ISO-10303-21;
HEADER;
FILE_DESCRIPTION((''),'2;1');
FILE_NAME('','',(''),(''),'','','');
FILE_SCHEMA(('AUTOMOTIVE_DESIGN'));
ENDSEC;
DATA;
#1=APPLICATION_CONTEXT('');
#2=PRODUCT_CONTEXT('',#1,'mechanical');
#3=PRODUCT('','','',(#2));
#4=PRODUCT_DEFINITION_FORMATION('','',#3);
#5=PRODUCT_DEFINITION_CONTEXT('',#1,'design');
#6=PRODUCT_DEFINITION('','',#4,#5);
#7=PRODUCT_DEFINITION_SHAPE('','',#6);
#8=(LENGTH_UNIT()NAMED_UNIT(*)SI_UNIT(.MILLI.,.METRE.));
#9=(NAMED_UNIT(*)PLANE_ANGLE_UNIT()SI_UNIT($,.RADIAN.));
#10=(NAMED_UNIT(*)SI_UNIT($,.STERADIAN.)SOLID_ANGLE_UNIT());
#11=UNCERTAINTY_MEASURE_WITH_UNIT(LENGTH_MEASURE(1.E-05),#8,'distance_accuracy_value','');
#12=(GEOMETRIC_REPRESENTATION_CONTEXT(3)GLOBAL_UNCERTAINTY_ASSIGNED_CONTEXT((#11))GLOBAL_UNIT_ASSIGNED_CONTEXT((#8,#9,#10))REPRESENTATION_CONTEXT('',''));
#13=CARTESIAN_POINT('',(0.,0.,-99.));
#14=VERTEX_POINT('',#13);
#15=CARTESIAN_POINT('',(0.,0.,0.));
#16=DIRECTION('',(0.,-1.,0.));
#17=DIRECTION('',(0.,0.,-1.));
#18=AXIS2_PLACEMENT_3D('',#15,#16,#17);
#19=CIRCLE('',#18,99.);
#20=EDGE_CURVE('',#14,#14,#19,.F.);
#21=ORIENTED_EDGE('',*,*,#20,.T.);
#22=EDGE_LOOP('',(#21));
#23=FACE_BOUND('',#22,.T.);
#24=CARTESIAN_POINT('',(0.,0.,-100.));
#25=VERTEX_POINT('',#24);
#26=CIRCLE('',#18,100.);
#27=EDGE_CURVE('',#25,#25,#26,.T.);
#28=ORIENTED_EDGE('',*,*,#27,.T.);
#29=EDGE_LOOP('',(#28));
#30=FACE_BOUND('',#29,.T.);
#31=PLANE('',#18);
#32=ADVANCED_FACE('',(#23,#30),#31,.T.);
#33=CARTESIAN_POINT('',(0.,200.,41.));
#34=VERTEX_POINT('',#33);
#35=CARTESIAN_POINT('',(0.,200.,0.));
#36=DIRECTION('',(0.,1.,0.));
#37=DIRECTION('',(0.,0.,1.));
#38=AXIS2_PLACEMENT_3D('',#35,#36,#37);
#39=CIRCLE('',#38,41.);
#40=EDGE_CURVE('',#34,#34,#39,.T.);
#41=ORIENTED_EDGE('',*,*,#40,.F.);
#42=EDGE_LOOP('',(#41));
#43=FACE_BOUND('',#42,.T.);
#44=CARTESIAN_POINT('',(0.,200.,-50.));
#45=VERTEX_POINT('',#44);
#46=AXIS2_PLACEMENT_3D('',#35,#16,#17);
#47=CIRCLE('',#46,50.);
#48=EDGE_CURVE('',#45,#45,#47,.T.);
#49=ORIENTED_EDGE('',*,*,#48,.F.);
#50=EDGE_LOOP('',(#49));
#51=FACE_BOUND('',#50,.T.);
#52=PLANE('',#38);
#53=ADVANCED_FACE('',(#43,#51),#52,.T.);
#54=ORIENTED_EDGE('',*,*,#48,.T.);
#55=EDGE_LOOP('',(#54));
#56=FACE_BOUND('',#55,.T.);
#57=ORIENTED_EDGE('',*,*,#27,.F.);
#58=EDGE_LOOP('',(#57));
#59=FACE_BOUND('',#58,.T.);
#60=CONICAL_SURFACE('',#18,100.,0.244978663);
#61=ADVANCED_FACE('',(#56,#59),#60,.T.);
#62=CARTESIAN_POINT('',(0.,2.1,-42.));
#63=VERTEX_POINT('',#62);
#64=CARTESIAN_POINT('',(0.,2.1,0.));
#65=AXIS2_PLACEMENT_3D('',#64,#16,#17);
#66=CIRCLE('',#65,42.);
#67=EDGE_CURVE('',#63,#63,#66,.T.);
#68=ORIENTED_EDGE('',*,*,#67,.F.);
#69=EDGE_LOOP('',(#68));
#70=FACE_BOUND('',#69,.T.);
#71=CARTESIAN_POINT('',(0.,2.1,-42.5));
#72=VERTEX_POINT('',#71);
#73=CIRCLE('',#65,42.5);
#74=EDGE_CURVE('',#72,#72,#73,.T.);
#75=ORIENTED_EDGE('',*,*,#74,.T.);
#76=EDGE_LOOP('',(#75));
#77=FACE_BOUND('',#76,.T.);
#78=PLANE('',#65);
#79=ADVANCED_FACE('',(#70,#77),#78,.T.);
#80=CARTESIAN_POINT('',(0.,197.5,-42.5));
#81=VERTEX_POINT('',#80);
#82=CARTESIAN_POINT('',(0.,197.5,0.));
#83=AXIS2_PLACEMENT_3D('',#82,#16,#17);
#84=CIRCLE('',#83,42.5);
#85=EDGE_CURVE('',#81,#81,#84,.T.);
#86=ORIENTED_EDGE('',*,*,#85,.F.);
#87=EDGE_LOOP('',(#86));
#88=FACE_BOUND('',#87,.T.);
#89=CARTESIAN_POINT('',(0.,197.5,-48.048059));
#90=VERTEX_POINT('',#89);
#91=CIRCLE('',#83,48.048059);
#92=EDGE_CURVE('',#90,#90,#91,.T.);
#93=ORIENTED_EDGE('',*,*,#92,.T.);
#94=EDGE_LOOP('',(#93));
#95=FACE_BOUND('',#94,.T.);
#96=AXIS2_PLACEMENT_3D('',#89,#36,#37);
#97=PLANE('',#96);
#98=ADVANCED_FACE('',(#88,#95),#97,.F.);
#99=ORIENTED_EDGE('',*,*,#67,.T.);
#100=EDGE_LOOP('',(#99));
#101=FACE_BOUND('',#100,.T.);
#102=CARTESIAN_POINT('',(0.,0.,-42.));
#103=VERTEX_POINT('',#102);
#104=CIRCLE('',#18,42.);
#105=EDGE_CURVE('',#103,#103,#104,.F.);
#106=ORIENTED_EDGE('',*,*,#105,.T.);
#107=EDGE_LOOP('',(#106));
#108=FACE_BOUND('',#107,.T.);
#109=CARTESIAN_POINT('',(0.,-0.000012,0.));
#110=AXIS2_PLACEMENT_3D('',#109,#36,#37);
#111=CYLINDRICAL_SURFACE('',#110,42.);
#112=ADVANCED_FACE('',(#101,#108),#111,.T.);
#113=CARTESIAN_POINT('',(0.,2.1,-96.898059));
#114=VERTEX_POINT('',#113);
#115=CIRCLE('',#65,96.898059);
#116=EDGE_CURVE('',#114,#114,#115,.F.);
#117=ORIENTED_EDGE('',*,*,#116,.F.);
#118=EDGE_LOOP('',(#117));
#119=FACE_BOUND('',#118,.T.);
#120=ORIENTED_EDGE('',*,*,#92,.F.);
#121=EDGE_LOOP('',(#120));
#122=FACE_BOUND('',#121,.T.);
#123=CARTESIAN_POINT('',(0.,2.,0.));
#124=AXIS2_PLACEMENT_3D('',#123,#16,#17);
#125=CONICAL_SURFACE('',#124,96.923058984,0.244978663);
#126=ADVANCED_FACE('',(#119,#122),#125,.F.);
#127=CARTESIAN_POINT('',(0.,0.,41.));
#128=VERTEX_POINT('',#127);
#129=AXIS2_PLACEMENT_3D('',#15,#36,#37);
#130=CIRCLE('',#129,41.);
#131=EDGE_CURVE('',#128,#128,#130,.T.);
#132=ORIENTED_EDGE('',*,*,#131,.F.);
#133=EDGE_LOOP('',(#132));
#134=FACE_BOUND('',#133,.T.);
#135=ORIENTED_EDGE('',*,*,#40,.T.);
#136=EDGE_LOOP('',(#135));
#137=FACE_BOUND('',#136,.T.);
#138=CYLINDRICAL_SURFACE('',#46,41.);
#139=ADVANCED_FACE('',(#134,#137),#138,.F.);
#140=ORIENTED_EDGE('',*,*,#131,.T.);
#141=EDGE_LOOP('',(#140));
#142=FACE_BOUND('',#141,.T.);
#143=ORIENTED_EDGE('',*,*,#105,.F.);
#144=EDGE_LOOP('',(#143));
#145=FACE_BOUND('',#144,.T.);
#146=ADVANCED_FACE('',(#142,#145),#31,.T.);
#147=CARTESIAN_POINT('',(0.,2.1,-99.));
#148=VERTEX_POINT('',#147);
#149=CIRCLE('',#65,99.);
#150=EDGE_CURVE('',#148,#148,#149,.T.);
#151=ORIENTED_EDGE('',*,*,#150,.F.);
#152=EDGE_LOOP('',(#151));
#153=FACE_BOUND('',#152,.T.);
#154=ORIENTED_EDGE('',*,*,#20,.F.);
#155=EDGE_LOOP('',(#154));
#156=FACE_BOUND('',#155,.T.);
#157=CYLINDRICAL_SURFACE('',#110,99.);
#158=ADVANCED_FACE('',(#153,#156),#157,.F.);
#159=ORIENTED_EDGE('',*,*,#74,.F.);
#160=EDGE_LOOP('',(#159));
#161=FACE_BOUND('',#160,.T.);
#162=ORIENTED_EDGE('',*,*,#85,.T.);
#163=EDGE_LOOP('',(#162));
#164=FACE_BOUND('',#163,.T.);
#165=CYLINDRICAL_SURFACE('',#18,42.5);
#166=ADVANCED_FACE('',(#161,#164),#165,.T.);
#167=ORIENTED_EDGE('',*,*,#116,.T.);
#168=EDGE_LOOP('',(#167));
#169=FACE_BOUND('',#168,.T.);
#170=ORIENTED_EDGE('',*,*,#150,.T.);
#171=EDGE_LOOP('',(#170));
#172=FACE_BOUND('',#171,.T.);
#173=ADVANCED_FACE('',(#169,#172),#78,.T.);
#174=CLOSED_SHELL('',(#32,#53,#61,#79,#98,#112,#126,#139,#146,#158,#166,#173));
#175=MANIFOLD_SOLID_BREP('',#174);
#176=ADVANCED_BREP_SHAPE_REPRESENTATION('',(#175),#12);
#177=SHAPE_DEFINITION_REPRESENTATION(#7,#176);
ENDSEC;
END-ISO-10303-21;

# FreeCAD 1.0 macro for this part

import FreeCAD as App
import Part
import Sketcher
Q = App.Units.Quantity


def add_polygon(sketch, points):
    """Adds a closed chain of lines whose ends are joined by coincident constraints."""
    first, n = sketch.GeometryCount, len(points)
    for a, b in zip(points, points[1:] + points[:1]):
        sketch.addGeometry(Part.LineSegment(App.Vector(*a, 0), App.Vector(*b, 0)), False)
    for i in range(n):
        sketch.addConstraint(Sketcher.Constraint("Coincident", first + i, 2, first + (i + 1) % n, 1))

doc = App.newDocument("Part")
body = doc.addObject("PartDesign::Body", "Body")

sketch1 = body.newObject("Sketcher::SketchObject", "Sketch")
sketch1.AttachmentSupport = (doc.getObject("YZ_Plane"), [""])
sketch1.MapMode = "FlatFace"
add_polygon(sketch1, [(0, 0), (0, -100), (200, -50), (200, 0)])
sketch1.addConstraint([
    Sketcher.Constraint("Vertical", 0),
    Sketcher.Constraint("Vertical", 2),
    Sketcher.Constraint("Horizontal", 3),
    Sketcher.Constraint("Coincident", 3, 2, -1, 1),
    Sketcher.Constraint("DistanceX", 3, 2, 3, 1, Q("200 mm")),
    Sketcher.Constraint("DistanceY", 0, 2, 0, 1, Q("100 mm")),
    Sketcher.Constraint("DistanceY", 2, 1, 2, 2, Q("50 mm")),
])
revolution = body.newObject("PartDesign::Revolution", "Revolution")
revolution.Profile = sketch1
revolution.ReferenceAxis = (sketch1, ["H_Axis"])
revolution.Angle = 360

sketch2 = body.newObject("Sketcher::SketchObject", "Sketch001")
sketch2.AttachmentSupport = (doc.getObject("XZ_Plane"), [""])
sketch2.MapMode = "FlatFace"
sketch2.addGeometry(Part.Circle(App.Vector(0, 0, 0), App.Vector(0, 0, 1), 41), False)
sketch2.addConstraint([
    Sketcher.Constraint("Coincident", 0, 3, -1, 1),
    Sketcher.Constraint("Diameter", 0, Q("82 mm")),
])
pocket1 = body.newObject("PartDesign::Pocket", "Pocket")
pocket1.Profile = sketch2
pocket1.Length = 200

sketch3 = body.newObject("Sketcher::SketchObject", "Sketch002")
sketch3.AttachmentSupport = (doc.getObject("YZ_Plane"), [""])
sketch3.MapMode = "FlatFace"
add_polygon(sketch3, [(2, -96.923059), (197.5, -48.048059), (197.5, -42.5), (2, -42.5)])
sketch3.addConstraint([
    Sketcher.Constraint("Vertical", 1),
    Sketcher.Constraint("Horizontal", 2),
    Sketcher.Constraint("Vertical", 3),
    Sketcher.Constraint("DistanceX", 2, 2, 2, 1, Q("195.5 mm")),
    Sketcher.Constraint("DistanceX", -1, 1, 2, 2, Q("2 mm")),
    Sketcher.Constraint("DistanceY", 1, 2, -1, 1, Q("42.5 mm")),
    Sketcher.Constraint("DistanceY", 3, 2, 0, 2, Q("48.875 mm")),
    Sketcher.Constraint("DistanceY", 1, 1, 1, 2, Q("5.548059 mm")),
])
groove = body.newObject("PartDesign::Groove", "Groove")
groove.Profile = sketch3
groove.ReferenceAxis = (sketch3, ["H_Axis"])
groove.Angle = 360

sketch4 = body.newObject("Sketcher::SketchObject", "Sketch003")
sketch4.AttachmentSupport = (doc.getObject("XZ_Plane"), [""])
sketch4.MapMode = "FlatFace"
sketch4.addGeometry([
    Part.Circle(App.Vector(0, 0, 0), App.Vector(0, 0, 1), 99),
    Part.Circle(App.Vector(0, 0, 0), App.Vector(0, 0, 1), 42),
], False)
sketch4.addConstraint([
    Sketcher.Constraint("Coincident", 0, 3, -1, 1),
    Sketcher.Constraint("Coincident", 1, 3, -1, 1),
    Sketcher.Constraint("Diameter", 0, Q("198 mm")),
    Sketcher.Constraint("Diameter", 1, Q("84 mm")),
])
pocket2 = body.newObject("PartDesign::Pocket", "Pocket001")
pocket2.Profile = sketch4
pocket2.Type = "TwoLengths"
pocket2.Length = 1
pocket2.Length2 = 2.1
pocket2.Reversed = True

doc.recompute()
